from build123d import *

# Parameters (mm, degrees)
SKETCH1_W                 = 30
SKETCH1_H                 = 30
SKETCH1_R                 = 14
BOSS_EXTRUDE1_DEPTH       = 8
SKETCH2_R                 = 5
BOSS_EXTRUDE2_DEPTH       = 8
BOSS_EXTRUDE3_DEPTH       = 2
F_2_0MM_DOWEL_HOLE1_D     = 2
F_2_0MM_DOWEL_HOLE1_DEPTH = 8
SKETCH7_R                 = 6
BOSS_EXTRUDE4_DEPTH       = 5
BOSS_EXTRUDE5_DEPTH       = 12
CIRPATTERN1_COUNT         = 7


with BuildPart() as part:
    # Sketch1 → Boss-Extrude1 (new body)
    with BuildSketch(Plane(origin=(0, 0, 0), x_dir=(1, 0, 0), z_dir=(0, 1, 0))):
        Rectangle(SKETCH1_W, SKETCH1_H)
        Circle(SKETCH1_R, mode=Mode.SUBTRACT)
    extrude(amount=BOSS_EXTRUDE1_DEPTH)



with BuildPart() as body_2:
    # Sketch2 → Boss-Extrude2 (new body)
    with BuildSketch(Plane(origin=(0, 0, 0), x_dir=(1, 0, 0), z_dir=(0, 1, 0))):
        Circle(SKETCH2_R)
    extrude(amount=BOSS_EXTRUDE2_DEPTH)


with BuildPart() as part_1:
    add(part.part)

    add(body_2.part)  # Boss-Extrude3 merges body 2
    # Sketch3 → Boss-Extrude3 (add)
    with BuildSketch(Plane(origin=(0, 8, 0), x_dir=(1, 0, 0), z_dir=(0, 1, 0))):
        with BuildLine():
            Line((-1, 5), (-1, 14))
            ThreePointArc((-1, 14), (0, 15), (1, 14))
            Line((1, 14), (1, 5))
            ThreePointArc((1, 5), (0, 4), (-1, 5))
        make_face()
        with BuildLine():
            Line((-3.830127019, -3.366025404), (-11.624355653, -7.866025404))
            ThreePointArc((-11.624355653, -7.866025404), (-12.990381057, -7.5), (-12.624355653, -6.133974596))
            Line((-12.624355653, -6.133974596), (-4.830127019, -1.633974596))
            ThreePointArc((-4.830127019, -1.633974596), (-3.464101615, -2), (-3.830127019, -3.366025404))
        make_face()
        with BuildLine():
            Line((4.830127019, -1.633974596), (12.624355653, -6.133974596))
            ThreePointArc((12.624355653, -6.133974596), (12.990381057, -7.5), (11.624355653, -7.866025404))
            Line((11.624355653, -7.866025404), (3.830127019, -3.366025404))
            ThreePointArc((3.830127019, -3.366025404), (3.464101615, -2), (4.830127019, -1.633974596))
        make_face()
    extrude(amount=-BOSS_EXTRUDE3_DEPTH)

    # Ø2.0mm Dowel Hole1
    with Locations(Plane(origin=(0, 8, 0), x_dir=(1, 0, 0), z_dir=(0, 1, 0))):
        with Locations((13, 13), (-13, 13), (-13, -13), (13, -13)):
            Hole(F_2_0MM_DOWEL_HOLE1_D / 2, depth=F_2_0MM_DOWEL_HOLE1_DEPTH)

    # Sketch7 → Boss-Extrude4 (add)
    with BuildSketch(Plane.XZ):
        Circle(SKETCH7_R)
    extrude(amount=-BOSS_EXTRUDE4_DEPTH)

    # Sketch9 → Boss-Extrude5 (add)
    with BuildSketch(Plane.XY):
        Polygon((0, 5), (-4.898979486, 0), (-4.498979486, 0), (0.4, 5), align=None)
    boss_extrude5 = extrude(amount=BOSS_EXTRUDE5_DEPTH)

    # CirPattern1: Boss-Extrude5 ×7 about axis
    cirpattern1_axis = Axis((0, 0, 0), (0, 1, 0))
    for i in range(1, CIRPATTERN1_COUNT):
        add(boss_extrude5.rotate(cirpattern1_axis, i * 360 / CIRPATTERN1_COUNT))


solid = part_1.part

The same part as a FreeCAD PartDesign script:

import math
import FreeCAD as App
import Part
import Sketcher
from FreeCAD import Vector
Q = App.Units.Quantity


def add_polygon(sketch, points):
    """Adds a closed chain of lines whose ends are joined by coincident constraints."""
    first, n = sketch.GeometryCount, len(points)
    for a, b in zip(points, points[1:] + points[:1]):
        sketch.addGeometry(Part.LineSegment(App.Vector(*a, 0), App.Vector(*b, 0)), False)
    for i in range(n):
        sketch.addConstraint(Sketcher.Constraint("Coincident", first + i, 2, first + (i + 1) % n, 1))

doc = App.newDocument("Part")
body = doc.addObject("PartDesign::Body", "Body")

# Sketch on XZ plane
sketch1 = body.newObject("Sketcher::SketchObject", "Sketch")
sketch1.AttachmentSupport = (doc.getObject("XZ_Plane"), [""])
sketch1.MapMode = "FlatFace"
add_polygon(sketch1, [(-15, -15), (-15, 15), (15, 15), (15, -15)])  # lines 0-3
sketch1.addGeometry(Part.Circle(Vector(0, 0, 0), Vector(0, 0, 1), 14), False)  # 4
sketch1.addConstraint([
    Sketcher.Constraint("Vertical", 0),
    Sketcher.Constraint("Horizontal", 1),
    Sketcher.Constraint("Vertical", 2),
    Sketcher.Constraint("Horizontal", 3),
    Sketcher.Constraint("Coincident", 4, 3, -1, 1),
    Sketcher.Constraint("Symmetric", 0, 2, 2, 2, -1, 1),
    Sketcher.Constraint("Equal", 3, 0),
    Sketcher.Constraint("Diameter", 4, 28.0),
    Sketcher.Constraint("DistanceX", 1, 1, 1, 2, 30.0),
])
pad1 = body.newObject("PartDesign::Pad", "Pad")
pad1.Profile = sketch1
pad1.Length = 8
pad1.Reversed = True
body2 = doc.addObject("PartDesign::Body", "Body001")

# Sketch on XZ plane
sketch2 = body2.newObject("Sketcher::SketchObject", "Sketch001")
sketch2.AttachmentSupport = (doc.getObject("XZ_Plane001"), [""])
sketch2.MapMode = "FlatFace"
sketch2.addGeometry(Part.Circle(Vector(0, 0, 0), Vector(0, 0, 1), 5), False)
sketch2.addConstraint([
    Sketcher.Constraint("Coincident", 0, 3, -1, 1),
    Sketcher.Constraint("Diameter", 0, 10.0),
])
pad2 = body2.newObject("PartDesign::Pad", "Pad001")
pad2.Profile = sketch2
pad2.Length = 8
pad2.Reversed = True
body.AllowCompound = True
doc.recompute()

boolean = body.newObject("PartDesign::Boolean", "Boolean")
boolean.Type = "Fuse"
boolean.addObjects([body2])

# Sketch on XZ plane
sketch3 = body.newObject("Sketcher::SketchObject", "Sketch002")
sketch3.AttachmentSupport = (doc.getObject("XZ_Plane"), [""])
sketch3.MapMode = "FlatFace"
sketch3.AttachmentOffset = App.Placement(Vector(0, 0, -8), App.Rotation())
sketch3.addGeometry([
    Part.LineSegment(Vector(-1, -14, 0), Vector(-1, -5, 0)),  # 0
    Part.ArcOfCircle(Part.Circle(Vector(0, -5, 0), Vector(0, 0, 1), 1), math.radians(0), math.radians(180)),  # 1
    Part.LineSegment(Vector(1, -5, 0), Vector(1, -14, 0)),  # 2
    Part.ArcOfCircle(Part.Circle(Vector(0, -14, 0), Vector(0, 0, 1), 1), math.radians(180), math.radians(360)),  # 3
    Part.LineSegment(Vector(-11.624356, 7.866025, 0), Vector(-3.830127, 3.366025, 0)),  # 4
    Part.ArcOfCircle(Part.Circle(Vector(-4.330127, 2.5, 0), Vector(0, 0, 1), 1), math.radians(-120), math.radians(60)),  # 5
    Part.LineSegment(Vector(-4.830127, 1.633975, 0), Vector(-12.624356, 6.133975, 0)),  # 6
    Part.ArcOfCircle(Part.Circle(Vector(-12.124356, 7, 0), Vector(0, 0, 1), 1), math.radians(60), math.radians(240)),  # 7
    Part.LineSegment(Vector(12.624356, 6.133975, 0), Vector(4.830127, 1.633975, 0)),  # 8
    Part.ArcOfCircle(Part.Circle(Vector(4.330127, 2.5, 0), Vector(0, 0, 1), 1), math.radians(120), math.radians(300)),  # 9
    Part.LineSegment(Vector(3.830127, 3.366025, 0), Vector(11.624356, 7.866025, 0)),  # 10
    Part.ArcOfCircle(Part.Circle(Vector(12.124356, 7, 0), Vector(0, 0, 1), 1), math.radians(-60), math.radians(120)),  # 11
], False)
sketch3.addConstraint([
    Sketcher.Constraint("Tangent", 0, 2, 1, 2),
    Sketcher.Constraint("Tangent", 1, 1, 2, 1),
    Sketcher.Constraint("Tangent", 2, 2, 3, 2),
    Sketcher.Constraint("Tangent", 3, 1, 0, 1),
    Sketcher.Constraint("Tangent", 4, 2, 5, 2),
    Sketcher.Constraint("Tangent", 5, 1, 6, 1),
    Sketcher.Constraint("Tangent", 6, 2, 7, 2),
    Sketcher.Constraint("Tangent", 7, 1, 4, 1),
    Sketcher.Constraint("Tangent", 8, 2, 9, 2),
    Sketcher.Constraint("Tangent", 9, 1, 10, 1),
    Sketcher.Constraint("Tangent", 10, 2, 11, 2),
    Sketcher.Constraint("Tangent", 11, 1, 8, 1),
    Sketcher.Constraint("Vertical", 0),
    Sketcher.Constraint("Vertical", 2),
    Sketcher.Constraint("Equal", 3, 5),
    Sketcher.Constraint("Equal", 5, 7),
    Sketcher.Constraint("Equal", 7, 9),
    Sketcher.Constraint("Equal", 9, 11),
    Sketcher.Constraint("Symmetric", 5, 3, 9, 3, -2),
    Sketcher.Constraint("Symmetric", 7, 3, 11, 3, -2),
    Sketcher.Constraint("PointOnObject", 1, 3, -2),
    Sketcher.Constraint("Radius", 1, 1.0),
    Sketcher.Constraint("DistanceY", 0, 1, 0, 2, 9.0),
    Sketcher.Constraint("Angle", 4, Q("-30 deg")),
    Sketcher.Constraint("Distance", 4, 9.0),
    Sketcher.Constraint("DistanceY", 1, 3, -1, 1, 5.0),
    Sketcher.Constraint("DistanceY", -1, 1, 7, 3, 7.0),
    Sketcher.Constraint("DistanceX", 7, 3, 11, 3, 24.248711),
])
pad3 = body.newObject("PartDesign::Pad", "Pad002")
pad3.Profile = sketch3
pad3.Length = 2

# Sketch on XZ plane
sketch4 = body.newObject("Sketcher::SketchObject", "Sketch003")
sketch4.AttachmentSupport = (doc.getObject("XZ_Plane"), [""])
sketch4.MapMode = "FlatFace"
sketch4.AttachmentOffset = App.Placement(Vector(0, 0, -8), App.Rotation())
sketch4.addGeometry([
    Part.Circle(Vector(13, -13, 0), Vector(0, 0, 1), 1),
    Part.Circle(Vector(-13, -13, 0), Vector(0, 0, 1), 1),
    Part.Circle(Vector(-13, 13, 0), Vector(0, 0, 1), 1),
    Part.Circle(Vector(13, 13, 0), Vector(0, 0, 1), 1),
], False)
sketch4.addConstraint([
    Sketcher.Constraint("Equal", 0, 1),
    Sketcher.Constraint("Equal", 1, 2),
    Sketcher.Constraint("Equal", 2, 3),
    Sketcher.Constraint("Symmetric", 0, 3, 2, 3, -1, 1),
    Sketcher.Constraint("Symmetric", 1, 3, 3, 3, -1, 1),
    Sketcher.Constraint("Symmetric", 0, 3, 1, 3, -2),
    Sketcher.Constraint("Diameter", 0, 2.0),
    Sketcher.Constraint("DistanceX", -1, 1, 0, 3, 13.0),
    Sketcher.Constraint("DistanceY", 0, 3, -1, 1, 13.0),
])
doc.recompute()
hole = body.newObject("PartDesign::Hole", "Hole")
hole.Profile = sketch4
hole.ThreadType = "None"
hole.Diameter = 2
hole.DepthType = "Dimension"
hole.Depth = 8
hole.DrillPoint = "Flat"
hole.Reversed = True

# Sketch on XZ plane
sketch5 = body.newObject("Sketcher::SketchObject", "Sketch004")
sketch5.AttachmentSupport = (doc.getObject("XZ_Plane"), [""])
sketch5.MapMode = "FlatFace"
sketch5.addGeometry(Part.Circle(Vector(0, 0, 0), Vector(0, 0, 1), 6), False)
sketch5.addConstraint([
    Sketcher.Constraint("Coincident", 0, 3, -1, 1),
    Sketcher.Constraint("Diameter", 0, 12.0),
])
pad4 = body.newObject("PartDesign::Pad", "Pad003")
pad4.Profile = sketch5
pad4.Length = 5
pad4.Reversed = True

# Sketch on XY plane
sketch6 = body.newObject("Sketcher::SketchObject", "Sketch005")
sketch6.AttachmentSupport = (doc.getObject("XY_Plane"), [""])
sketch6.MapMode = "FlatFace"
add_polygon(sketch6, [(0, 5), (-4.898979, 0), (-4.498979, 0), (0.4, 5)])  # lines 0-3
sketch6.addConstraint([
    Sketcher.Constraint("Horizontal", 1),
    Sketcher.Constraint("Horizontal", 3),
    Sketcher.Constraint("PointOnObject", 0, 2, -1),
    Sketcher.Constraint("PointOnObject", 3, 2, -2),
    Sketcher.Constraint("Parallel", 0, 2),
    Sketcher.Constraint("Distance", 0, 7.0),
    Sketcher.Constraint("DistanceX", 1, 1, 1, 2, 0.4),
    Sketcher.Constraint("DistanceY", -1, 1, 2, 2, 5.0),
])
pad5 = body.newObject("PartDesign::Pad", "Pad004")
pad5.Profile = sketch6
pad5.Length = 12
doc.recompute()

polarpattern = body.newObject("PartDesign::PolarPattern", "PolarPattern")
polarpattern.Originals = [pad5]
polarpattern.Axis = (doc.getObject("Y_Axis"), [""])
polarpattern.Angle = 360
polarpattern.Occurrences = 7
body.Tip = polarpattern

doc.recompute()
